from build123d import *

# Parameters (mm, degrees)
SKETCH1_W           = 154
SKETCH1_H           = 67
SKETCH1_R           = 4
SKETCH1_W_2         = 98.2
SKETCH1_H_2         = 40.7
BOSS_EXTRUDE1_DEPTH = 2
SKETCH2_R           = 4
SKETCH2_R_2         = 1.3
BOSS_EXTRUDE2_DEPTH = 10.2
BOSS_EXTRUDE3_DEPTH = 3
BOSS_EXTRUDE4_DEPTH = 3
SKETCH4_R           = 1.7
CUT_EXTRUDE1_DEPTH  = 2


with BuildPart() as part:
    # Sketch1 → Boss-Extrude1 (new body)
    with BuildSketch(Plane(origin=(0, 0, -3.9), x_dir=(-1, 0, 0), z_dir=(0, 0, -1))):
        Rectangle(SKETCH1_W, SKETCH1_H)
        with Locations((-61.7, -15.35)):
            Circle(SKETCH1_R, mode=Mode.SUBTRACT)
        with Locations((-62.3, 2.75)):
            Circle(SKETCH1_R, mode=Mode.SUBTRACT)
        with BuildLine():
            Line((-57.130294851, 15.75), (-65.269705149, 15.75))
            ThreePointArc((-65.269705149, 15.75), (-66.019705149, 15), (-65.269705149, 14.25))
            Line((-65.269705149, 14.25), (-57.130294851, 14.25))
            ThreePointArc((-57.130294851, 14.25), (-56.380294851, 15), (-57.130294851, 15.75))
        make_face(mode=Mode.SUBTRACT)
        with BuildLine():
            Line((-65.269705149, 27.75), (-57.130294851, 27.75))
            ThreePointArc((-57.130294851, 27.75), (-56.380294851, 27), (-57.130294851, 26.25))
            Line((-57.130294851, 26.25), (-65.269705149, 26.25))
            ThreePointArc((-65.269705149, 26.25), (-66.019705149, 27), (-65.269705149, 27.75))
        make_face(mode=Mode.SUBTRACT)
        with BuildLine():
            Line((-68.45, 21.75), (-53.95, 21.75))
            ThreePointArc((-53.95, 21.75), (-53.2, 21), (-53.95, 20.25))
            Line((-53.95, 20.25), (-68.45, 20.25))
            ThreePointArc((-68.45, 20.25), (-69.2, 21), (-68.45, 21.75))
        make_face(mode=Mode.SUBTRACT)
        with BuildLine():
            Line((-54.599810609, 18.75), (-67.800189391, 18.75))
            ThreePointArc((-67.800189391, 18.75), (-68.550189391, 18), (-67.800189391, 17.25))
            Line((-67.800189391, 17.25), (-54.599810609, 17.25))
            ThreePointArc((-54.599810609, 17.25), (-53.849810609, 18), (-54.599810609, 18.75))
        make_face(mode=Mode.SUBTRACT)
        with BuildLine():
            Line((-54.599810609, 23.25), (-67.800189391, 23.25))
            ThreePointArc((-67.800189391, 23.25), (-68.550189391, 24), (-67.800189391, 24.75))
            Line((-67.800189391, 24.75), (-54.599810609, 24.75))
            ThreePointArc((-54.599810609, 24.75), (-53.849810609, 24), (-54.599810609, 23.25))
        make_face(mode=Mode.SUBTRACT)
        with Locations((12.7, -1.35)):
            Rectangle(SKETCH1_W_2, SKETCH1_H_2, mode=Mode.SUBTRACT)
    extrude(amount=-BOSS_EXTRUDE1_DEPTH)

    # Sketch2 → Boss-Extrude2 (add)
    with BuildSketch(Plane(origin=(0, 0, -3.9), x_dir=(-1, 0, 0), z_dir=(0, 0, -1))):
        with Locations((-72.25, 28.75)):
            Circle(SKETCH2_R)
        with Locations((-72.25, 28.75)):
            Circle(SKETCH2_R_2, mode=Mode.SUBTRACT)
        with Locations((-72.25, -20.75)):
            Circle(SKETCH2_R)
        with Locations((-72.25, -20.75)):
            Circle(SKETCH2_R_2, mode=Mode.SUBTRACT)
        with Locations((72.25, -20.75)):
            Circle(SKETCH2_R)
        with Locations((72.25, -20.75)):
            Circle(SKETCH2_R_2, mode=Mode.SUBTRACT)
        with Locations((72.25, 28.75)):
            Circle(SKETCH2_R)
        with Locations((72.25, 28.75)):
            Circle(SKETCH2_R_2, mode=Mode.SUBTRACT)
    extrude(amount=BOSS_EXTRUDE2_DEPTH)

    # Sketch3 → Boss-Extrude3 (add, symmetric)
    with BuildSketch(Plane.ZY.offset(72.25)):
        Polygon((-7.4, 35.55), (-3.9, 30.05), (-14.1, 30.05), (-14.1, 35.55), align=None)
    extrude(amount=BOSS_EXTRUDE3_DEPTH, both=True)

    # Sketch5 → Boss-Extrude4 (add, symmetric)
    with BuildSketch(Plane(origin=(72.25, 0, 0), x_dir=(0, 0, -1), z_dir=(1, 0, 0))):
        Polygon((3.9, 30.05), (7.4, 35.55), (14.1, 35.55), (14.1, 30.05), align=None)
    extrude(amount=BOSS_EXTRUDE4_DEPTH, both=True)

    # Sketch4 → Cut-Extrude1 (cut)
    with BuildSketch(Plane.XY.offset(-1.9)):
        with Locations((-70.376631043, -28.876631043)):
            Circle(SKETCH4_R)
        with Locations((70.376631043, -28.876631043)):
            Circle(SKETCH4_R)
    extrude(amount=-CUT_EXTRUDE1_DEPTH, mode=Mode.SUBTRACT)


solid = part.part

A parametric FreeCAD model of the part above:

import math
import FreeCAD as App
import Part
import Sketcher
Q = App.Units.Quantity


def add_polygon(sketch, points):
    """Adds a closed chain of lines whose ends are joined by coincident constraints."""
    first, n = sketch.GeometryCount, len(points)
    for a, b in zip(points, points[1:] + points[:1]):
        sketch.addGeometry(Part.LineSegment(App.Vector(*a, 0), App.Vector(*b, 0)), False)
    for i in range(n):
        sketch.addConstraint(Sketcher.Constraint("Coincident", first + i, 2, first + (i + 1) % n, 1))

doc = App.newDocument("Part")
body = doc.addObject("PartDesign::Body", "Body")

# Sketch on XY plane
sketch1 = body.newObject("Sketcher::SketchObject", "Sketch")
sketch1.AttachmentSupport = (doc.getObject("XY_Plane"), [""])
sketch1.MapMode = "FlatFace"
sketch1.AttachmentOffset = App.Placement(App.Vector(0, 0, -3.9), App.Rotation())
add_polygon(sketch1, [(77, 33.5), (77, -33.5), (-77, -33.5), (-77, 33.5)])  # lines 0-3
sketch1.addGeometry(Part.Circle(App.Vector(61.7, -15.3, 0), App.Vector(0, 0, 1), 4), False)  # 4
sketch1.addGeometry(Part.Circle(App.Vector(62.3, 2.8, 0), App.Vector(0, 0, 1), 4), False)  # 5
add_polygon(sketch1, [(-61.8, -21.7), (36.4, -21.7), (36.4, 19), (-61.8, 19)])  # lines 6-9
sketch1.addGeometry(Part.LineSegment(App.Vector(65.3, 15.8, 0), App.Vector(57.1, 15.8, 0)), False)  # 10
sketch1.addGeometry(Part.ArcOfCircle(Part.Circle(App.Vector(57.1, 15, 0), App.Vector(0, 0, 1), 0.8), math.radians(90), math.radians(270)), False)  # 11
sketch1.addGeometry(Part.LineSegment(App.Vector(57.1, 14.2, 0), App.Vector(65.3, 14.2, 0)), False)  # 12
sketch1.addGeometry(Part.ArcOfCircle(Part.Circle(App.Vector(65.3, 15, 0), App.Vector(0, 0, 1), 0.8), math.radians(-90), math.radians(90)), False)  # 13
sketch1.addGeometry(Part.LineSegment(App.Vector(67.8, 18.8, 0), App.Vector(54.6, 18.8, 0)), False)  # 14
sketch1.addGeometry(Part.ArcOfCircle(Part.Circle(App.Vector(54.6, 18, 0), App.Vector(0, 0, 1), 0.8), math.radians(90), math.radians(270)), False)  # 15
sketch1.addGeometry(Part.LineSegment(App.Vector(54.6, 17.2, 0), App.Vector(67.8, 17.2, 0)), False)  # 16
sketch1.addGeometry(Part.ArcOfCircle(Part.Circle(App.Vector(67.8, 18, 0), App.Vector(0, 0, 1), 0.8), math.radians(-90), math.radians(90)), False)  # 17
sketch1.addGeometry(Part.ArcOfCircle(Part.Circle(App.Vector(68.5, 21, 0), App.Vector(0, 0, 1), 0.8), math.radians(-90), math.radians(90)), False)  # 18
sketch1.addGeometry(Part.LineSegment(App.Vector(68.5, 21.8, 0), App.Vector(54, 21.8, 0)), False)  # 19
sketch1.addGeometry(Part.ArcOfCircle(Part.Circle(App.Vector(54, 21, 0), App.Vector(0, 0, 1), 0.8), math.radians(90), math.radians(270)), False)  # 20
sketch1.addGeometry(Part.LineSegment(App.Vector(54, 20.2, 0), App.Vector(68.5, 20.2, 0)), False)  # 21
sketch1.addGeometry(Part.ArcOfCircle(Part.Circle(App.Vector(54.6, 24, 0), App.Vector(0, 0, 1), 0.8), math.radians(90), math.radians(270)), False)  # 22
sketch1.addGeometry(Part.LineSegment(App.Vector(54.6, 23.2, 0), App.Vector(67.8, 23.2, 0)), False)  # 23
sketch1.addGeometry(Part.ArcOfCircle(Part.Circle(App.Vector(67.8, 24, 0), App.Vector(0, 0, 1), 0.8), math.radians(-90), math.radians(90)), False)  # 24
sketch1.addGeometry(Part.LineSegment(App.Vector(67.8, 24.8, 0), App.Vector(54.6, 24.8, 0)), False)  # 25
sketch1.addGeometry(Part.ArcOfCircle(Part.Circle(App.Vector(65.3, 27, 0), App.Vector(0, 0, 1), 0.8), math.radians(-90), math.radians(90)), False)  # 26
sketch1.addGeometry(Part.LineSegment(App.Vector(65.3, 27.8, 0), App.Vector(57.1, 27.8, 0)), False)  # 27
sketch1.addGeometry(Part.ArcOfCircle(Part.Circle(App.Vector(57.1, 27, 0), App.Vector(0, 0, 1), 0.8), math.radians(90), math.radians(270)), False)  # 28
sketch1.addGeometry(Part.LineSegment(App.Vector(57.1, 26.2, 0), App.Vector(65.3, 26.2, 0)), False)  # 29
sketch1.addConstraint([
    Sketcher.Constraint("Tangent", 10, 2, 11, 1),
    Sketcher.Constraint("Tangent", 11, 2, 12, 1),
    Sketcher.Constraint("Tangent", 12, 2, 13, 1),
    Sketcher.Constraint("Tangent", 13, 2, 10, 1),
    Sketcher.Constraint("Tangent", 14, 2, 15, 1),
    Sketcher.Constraint("Tangent", 15, 2, 16, 1),
    Sketcher.Constraint("Tangent", 16, 2, 17, 1),
    Sketcher.Constraint("Tangent", 17, 2, 14, 1),
    Sketcher.Constraint("Tangent", 18, 2, 19, 1),
    Sketcher.Constraint("Tangent", 19, 2, 20, 1),
    Sketcher.Constraint("Tangent", 20, 2, 21, 1),
    Sketcher.Constraint("Tangent", 21, 2, 18, 1),
    Sketcher.Constraint("Tangent", 22, 2, 23, 1),
    Sketcher.Constraint("Tangent", 23, 2, 24, 1),
    Sketcher.Constraint("Tangent", 24, 2, 25, 1),
    Sketcher.Constraint("Tangent", 25, 2, 22, 1),
    Sketcher.Constraint("Tangent", 26, 2, 27, 1),
    Sketcher.Constraint("Tangent", 27, 2, 28, 1),
    Sketcher.Constraint("Tangent", 28, 2, 29, 1),
    Sketcher.Constraint("Tangent", 29, 2, 26, 1),
    Sketcher.Constraint("Vertical", 0),
    Sketcher.Constraint("Horizontal", 1),
    Sketcher.Constraint("Vertical", 2),
    Sketcher.Constraint("Horizontal", 3),
    Sketcher.Constraint("Horizontal", 6),
    Sketcher.Constraint("Vertical", 7),
    Sketcher.Constraint("Horizontal", 8),
    Sketcher.Constraint("Vertical", 9),
    Sketcher.Constraint("Horizontal", 10),
    Sketcher.Constraint("Horizontal", 12),
    Sketcher.Constraint("Horizontal", 14),
    Sketcher.Constraint("Horizontal", 16),
    Sketcher.Constraint("Horizontal", 19),
    Sketcher.Constraint("Horizontal", 21),
    Sketcher.Constraint("Horizontal", 23),
    Sketcher.Constraint("Horizontal", 25),
    Sketcher.Constraint("Horizontal", 27),
    Sketcher.Constraint("Horizontal", 29),
    Sketcher.Constraint("Equal", 4, 5),
    Sketcher.Constraint("Equal", 13, 15),
    Sketcher.Constraint("Equal", 17, 18),
    Sketcher.Constraint("Equal", 20, 22),
    Sketcher.Constraint("Equal", 24, 26),
    Sketcher.Constraint("Symmetric", 0, 2, 2, 2, -1, 1),
    Sketcher.Constraint("Vertical", 15, 3, 22, 3),
    Sketcher.Constraint("Vertical", 17, 3, 24, 3),
    Sketcher.Constraint("Vertical", 13, 3, 26, 3),
    Sketcher.Constraint("Vertical", 11, 3, 28, 3),
    Sketcher.Constraint("Diameter", 4, Q("8 mm")),
    Sketcher.Constraint("DistanceX", 1, 2, 1, 1, Q("154 mm")),
    Sketcher.Constraint("DistanceY", 0, 2, 0, 1, Q("67 mm")),
    Sketcher.Constraint("Radius", 11, Q("0.75 mm")),
    Sketcher.Constraint("DistanceX", 6, 1, 6, 2, Q("98.2 mm")),
    Sketcher.Constraint("DistanceX", 19, 2, 19, 1, Q("14.5 mm")),
    Sketcher.Constraint("DistanceY", 7, 1, 7, 2, Q("40.7 mm")),
    Sketcher.Constraint("DistanceY", -1, 1, 11, 3, Q("15 mm")),
    Sketcher.Constraint("DistanceY", -1, 1, 15, 3, Q("18 mm")),
    Sketcher.Constraint("DistanceY", -1, 1, 18, 3, Q("21 mm")),
    Sketcher.Constraint("DistanceY", -1, 1, 22, 3, Q("24 mm")),
    Sketcher.Constraint("DistanceY", -1, 1, 26, 3, Q("27 mm")),
    Sketcher.Constraint("DistanceY", -1, 1, 7, 2, Q("19 mm")),
    Sketcher.Constraint("DistanceX", -1, 1, 4, 3, Q("61.7 mm")),
    Sketcher.Constraint("DistanceX", -1, 1, 5, 3, Q("62.3 mm")),
    Sketcher.Constraint("DistanceX", -1, 1, 6, 2, Q("36.4 mm")),
    Sketcher.Constraint("DistanceY", 4, 3, 5, 3, Q("18.1 mm")),
    Sketcher.Constraint("DistanceY", 4, 3, -1, 1, Q("15.35 mm")),
    Sketcher.Constraint("DistanceX", -1, 1, 18, 3, Q("68.45 mm")),
    Sketcher.Constraint("DistanceX", 10, 2, 10, 1, Q("8.13941 mm")),
    Sketcher.Constraint("DistanceX", 14, 2, 14, 1, Q("13.200379 mm")),
    Sketcher.Constraint("DistanceX", -1, 1, 15, 3, Q("54.599811 mm")),
    Sketcher.Constraint("DistanceX", -1, 1, 11, 3, Q("57.130295 mm")),
])
pad1 = body.newObject("PartDesign::Pad", "Pad")
pad1.Profile = sketch1
pad1.Length = 2

# Sketch on XY plane
sketch2 = body.newObject("Sketcher::SketchObject", "Sketch001")
sketch2.AttachmentSupport = (doc.getObject("XY_Plane"), [""])
sketch2.MapMode = "FlatFace"
sketch2.AttachmentOffset = App.Placement(App.Vector(0, 0, -3.9), App.Rotation())
sketch2.addGeometry([
    Part.Circle(App.Vector(72.2, 28.8, 0), App.Vector(0, 0, 1), 4),  # 0
    Part.Circle(App.Vector(72.2, 28.8, 0), App.Vector(0, 0, 1), 1.3),  # 1
    Part.Circle(App.Vector(72.2, -20.8, 0), App.Vector(0, 0, 1), 4),  # 2
    Part.Circle(App.Vector(72.2, -20.8, 0), App.Vector(0, 0, 1), 1.3),  # 3
    Part.Circle(App.Vector(-72.2, -20.8, 0), App.Vector(0, 0, 1), 4),  # 4
    Part.Circle(App.Vector(-72.2, -20.8, 0), App.Vector(0, 0, 1), 1.3),  # 5
    Part.Circle(App.Vector(-72.2, 28.8, 0), App.Vector(0, 0, 1), 4),  # 6
    Part.Circle(App.Vector(-72.2, 28.8, 0), App.Vector(0, 0, 1), 1.3),  # 7
], False)
sketch2.addConstraint([
    Sketcher.Constraint("Coincident", 1, 3, 0, 3),
    Sketcher.Constraint("Coincident", 3, 3, 2, 3),
    Sketcher.Constraint("Coincident", 5, 3, 4, 3),
    Sketcher.Constraint("Coincident", 7, 3, 6, 3),
    Sketcher.Constraint("Equal", 0, 2),
    Sketcher.Constraint("Equal", 1, 3),
    Sketcher.Constraint("Equal", 2, 4),
    Sketcher.Constraint("Equal", 3, 5),
    Sketcher.Constraint("Equal", 4, 6),
    Sketcher.Constraint("Equal", 5, 7),
    Sketcher.Constraint("Symmetric", 2, 3, 4, 3, -2),
    Sketcher.Constraint("Symmetric", 0, 3, 6, 3, -2),
    Sketcher.Constraint("Vertical", 1, 3, 2, 3),
    Sketcher.Constraint("Diameter", 0, Q("8 mm")),
    Sketcher.Constraint("Diameter", 1, Q("2.6 mm")),
    Sketcher.Constraint("DistanceY", 2, 3, 0, 3, Q("49.5 mm")),
    Sketcher.Constraint("DistanceX", 4, 3, 2, 3, Q("144.5 mm")),
    Sketcher.Constraint("DistanceY", -1, 1, 0, 3, Q("28.75 mm")),
])
pad2 = body.newObject("PartDesign::Pad", "Pad001")
pad2.Profile = sketch2
pad2.Length = 10.2
pad2.Reversed = True

# Sketch on YZ plane
sketch3 = body.newObject("Sketcher::SketchObject", "Sketch002")
sketch3.AttachmentSupport = (doc.getObject("YZ_Plane"), [""])
sketch3.MapMode = "FlatFace"
sketch3.AttachmentOffset = App.Placement(App.Vector(0, 0, -72.25), App.Rotation())
add_polygon(sketch3, [(30, -4), (36, -7), (36, -14), (30, -14)])  # lines 0-3
sketch3.addConstraint([
    Sketcher.Constraint("Vertical", 1),
    Sketcher.Constraint("Horizontal", 2),
    Sketcher.Constraint("Vertical", 3),
    Sketcher.Constraint("DistanceX", 2, 2, 2, 1, Q("5.5 mm")),
    Sketcher.Constraint("DistanceY", 1, 2, 1, 1, Q("6.7 mm")),
    Sketcher.Constraint("DistanceY", 3, 1, 3, 2, Q("10.2 mm")),
    Sketcher.Constraint("DistanceY", 0, 2, -1, 1, Q("7.4 mm")),
    Sketcher.Constraint("DistanceX", -1, 1, 0, 2, Q("35.55 mm")),
])
pad3 = body.newObject("PartDesign::Pad", "Pad002")
pad3.Profile = sketch3
pad3.Length = 6
pad3.Midplane = True

# Sketch on YZ plane
sketch4 = body.newObject("Sketcher::SketchObject", "Sketch003")
sketch4.AttachmentSupport = (doc.getObject("YZ_Plane"), [""])
sketch4.MapMode = "FlatFace"
sketch4.AttachmentOffset = App.Placement(App.Vector(0, 0, 72.25), App.Rotation())
add_polygon(sketch4, [(36, -7), (30, -4), (30, -14), (36, -14)])  # lines 0-3
sketch4.addConstraint([
    Sketcher.Constraint("Vertical", 1),
    Sketcher.Constraint("Horizontal", 2),
    Sketcher.Constraint("Vertical", 3),
    Sketcher.Constraint("DistanceX", 2, 1, 2, 2, Q("5.5 mm")),
    Sketcher.Constraint("DistanceY", 1, 2, 1, 1, Q("10.2 mm")),
    Sketcher.Constraint("DistanceY", 3, 1, 3, 2, Q("6.7 mm")),
    Sketcher.Constraint("DistanceY", 0, 2, -1, 1, Q("3.9 mm")),
    Sketcher.Constraint("DistanceX", -1, 1, 0, 2, Q("30.05 mm")),
])
pad4 = body.newObject("PartDesign::Pad", "Pad003")
pad4.Profile = sketch4
pad4.Length = 6
pad4.Midplane = True

# Sketch on XY plane
sketch5 = body.newObject("Sketcher::SketchObject", "Sketch004")
sketch5.AttachmentSupport = (doc.getObject("XY_Plane"), [""])
sketch5.MapMode = "FlatFace"
sketch5.AttachmentOffset = App.Placement(App.Vector(0, 0, -1.9), App.Rotation())
sketch5.addGeometry([
    Part.Circle(App.Vector(-70.4, -28.9, 0), App.Vector(0, 0, 1), 1.7),
    Part.Circle(App.Vector(70.4, -28.9, 0), App.Vector(0, 0, 1), 1.7),
], False)
sketch5.addConstraint([
    Sketcher.Constraint("Equal", 0, 1),
    Sketcher.Constraint("Symmetric", 0, 3, 1, 3, -2),
    Sketcher.Constraint("Diameter", 0, Q("3.4 mm")),
    Sketcher.Constraint("DistanceX", 0, 3, -1, 1, Q("70.376631 mm")),
    Sketcher.Constraint("DistanceY", 0, 3, -1, 1, Q("28.876631 mm")),
])
pocket1 = body.newObject("PartDesign::Pocket", "Pocket")
pocket1.Profile = sketch5
pocket1.Length = 2

doc.recompute()
